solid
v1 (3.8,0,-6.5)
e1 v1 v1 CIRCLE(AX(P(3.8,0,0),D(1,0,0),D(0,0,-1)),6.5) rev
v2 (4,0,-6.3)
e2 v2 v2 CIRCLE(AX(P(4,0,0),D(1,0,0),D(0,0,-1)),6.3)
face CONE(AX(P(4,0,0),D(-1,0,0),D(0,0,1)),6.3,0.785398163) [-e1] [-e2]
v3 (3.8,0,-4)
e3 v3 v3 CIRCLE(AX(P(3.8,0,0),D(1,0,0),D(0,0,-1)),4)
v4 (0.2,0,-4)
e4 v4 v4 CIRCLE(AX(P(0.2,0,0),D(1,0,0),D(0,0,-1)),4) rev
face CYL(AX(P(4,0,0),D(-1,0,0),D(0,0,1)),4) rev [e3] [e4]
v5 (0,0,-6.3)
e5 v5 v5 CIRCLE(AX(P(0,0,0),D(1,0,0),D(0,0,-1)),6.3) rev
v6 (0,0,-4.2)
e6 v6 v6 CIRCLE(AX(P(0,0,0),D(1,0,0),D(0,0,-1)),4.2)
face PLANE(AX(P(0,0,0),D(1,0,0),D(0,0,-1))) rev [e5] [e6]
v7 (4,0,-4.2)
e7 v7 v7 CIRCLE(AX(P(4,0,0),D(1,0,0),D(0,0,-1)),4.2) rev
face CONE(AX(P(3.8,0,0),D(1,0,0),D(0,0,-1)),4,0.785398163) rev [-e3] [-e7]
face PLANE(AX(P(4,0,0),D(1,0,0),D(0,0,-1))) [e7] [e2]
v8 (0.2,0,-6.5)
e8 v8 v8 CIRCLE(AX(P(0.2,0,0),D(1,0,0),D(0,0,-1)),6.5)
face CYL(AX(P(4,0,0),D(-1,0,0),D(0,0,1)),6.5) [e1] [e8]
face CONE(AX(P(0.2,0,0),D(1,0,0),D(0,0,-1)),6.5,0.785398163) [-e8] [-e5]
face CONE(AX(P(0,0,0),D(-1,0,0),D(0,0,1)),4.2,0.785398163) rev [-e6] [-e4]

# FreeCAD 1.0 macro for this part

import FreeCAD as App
import Part
import Sketcher


def edges_at(feature, points):
    """Names of the edges that pass closest to the given points."""
    edges = feature.Shape.Edges
    near = lambda p: min(range(len(edges)), key=lambda i: edges[i].distToShape(Part.Vertex(*p))[0])
    return sorted({f"Edge{near(p) + 1}" for p in points})

doc = App.newDocument("Part")
body = doc.addObject("PartDesign::Body", "Body")

# Sketch on YZ plane
sketch1 = body.newObject("Sketcher::SketchObject", "Sketch")
sketch1.AttachmentSupport = (doc.getObject("YZ_Plane"), [""])
sketch1.MapMode = "FlatFace"
sketch1.addGeometry(Part.Circle(App.Vector(0, 0, 0), App.Vector(0, 0, 1), 6.5), False)
sketch1.addGeometry(Part.Circle(App.Vector(0, 0, 0), App.Vector(0, 0, 1), 4), False)
sketch1.addConstraint(Sketcher.Constraint("Coincident", 0, 3, -1, 1))
sketch1.addConstraint(Sketcher.Constraint("Coincident", 1, 3, -1, 1))
sketch1.addConstraint(Sketcher.Constraint("Diameter", 0, 13.0))
sketch1.addConstraint(Sketcher.Constraint("Diameter", 1, 8.0))
pad1 = body.newObject("PartDesign::Pad", "Pad")
pad1.Profile = sketch1
pad1.Length = 4
doc.recompute()

chamfer = body.newObject("PartDesign::Chamfer", "Chamfer")
chamfer.Base = (pad1, edges_at(pad1, [
    (0, 0, 6.5),
    (4, 0, 6.5),
    (0, 0, 4),
    (4, 0, 4),
]))
chamfer.Size = 0.2

doc.recompute()
